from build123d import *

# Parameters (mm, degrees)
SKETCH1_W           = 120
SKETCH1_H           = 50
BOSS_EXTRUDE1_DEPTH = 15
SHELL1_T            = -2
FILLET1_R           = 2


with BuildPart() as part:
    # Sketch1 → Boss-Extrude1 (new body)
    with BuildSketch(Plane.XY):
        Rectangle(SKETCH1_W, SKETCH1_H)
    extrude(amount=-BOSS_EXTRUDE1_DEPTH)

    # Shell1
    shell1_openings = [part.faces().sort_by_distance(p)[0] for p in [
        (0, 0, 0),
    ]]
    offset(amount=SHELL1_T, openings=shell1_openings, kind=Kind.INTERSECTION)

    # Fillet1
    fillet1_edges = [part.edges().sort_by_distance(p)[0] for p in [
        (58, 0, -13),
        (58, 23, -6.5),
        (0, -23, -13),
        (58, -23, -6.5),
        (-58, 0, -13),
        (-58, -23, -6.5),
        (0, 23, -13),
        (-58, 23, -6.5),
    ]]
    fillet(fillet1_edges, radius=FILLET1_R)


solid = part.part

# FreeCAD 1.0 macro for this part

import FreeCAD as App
import Part
import Sketcher
from FreeCAD import Vector
Q = App.Units.Quantity


def edges_at(feature, points):
    """Names of the edges that pass closest to the given points."""
    edges = feature.Shape.Edges
    near = lambda p: min(range(len(edges)), key=lambda i: edges[i].distToShape(Part.Vertex(*p))[0])
    return sorted({f"Edge{near(p) + 1}" for p in points})


def faces_at(feature, points):
    """Names of the faces that lie closest to the given points."""
    faces = feature.Shape.Faces
    near = lambda p: min(range(len(faces)), key=lambda i: faces[i].distToShape(Part.Vertex(*p))[0])
    return sorted({f"Face{near(p) + 1}" for p in points})

doc = App.newDocument("Part")
body = doc.addObject("PartDesign::Body", "Body")

# Sketch on XY plane
sketch1 = doc.addObject("Sketcher::SketchObject", "Sketch")
body.addObject(sketch1)
sketch1.AttachmentSupport = (doc.XY_Plane, [""])
sketch1.MapMode = "FlatFace"
sketch1.addGeometry([
    Part.LineSegment(Vector(-60, 25, 0), Vector(-60, -25, 0)),
    Part.LineSegment(Vector(-60, -25, 0), Vector(60, -25, 0)),
    Part.LineSegment(Vector(60, -25, 0), Vector(60, 25, 0)),
    Part.LineSegment(Vector(60, 25, 0), Vector(-60, 25, 0)),
], False)
sketch1.addConstraint([
    Sketcher.Constraint("Coincident", 0, 2, 1, 1),
    Sketcher.Constraint("Coincident", 1, 2, 2, 1),
    Sketcher.Constraint("Coincident", 2, 2, 3, 1),
    Sketcher.Constraint("Coincident", 3, 2, 0, 1),
    Sketcher.Constraint("Vertical", 0),
    Sketcher.Constraint("Horizontal", 1),
    Sketcher.Constraint("Vertical", 2),
    Sketcher.Constraint("Horizontal", 3),
    Sketcher.Constraint("Symmetric", 0, 2, 2, 2, -1, 1),
    Sketcher.Constraint("DistanceX", 1, 1, 1, 2, Q("120 mm")),
    Sketcher.Constraint("DistanceY", 0, 2, 0, 1, Q("50 mm")),
])
pad1 = doc.addObject("PartDesign::Pad", "Pad")
body.addObject(pad1)
pad1.Profile = sketch1
pad1.Length = 15
pad1.Reversed = True
doc.recompute()

thickness = doc.addObject("PartDesign::Thickness", "Thickness")
body.addObject(thickness)
thickness.Base = (pad1, faces_at(pad1, [(0, 0, 0)]))
thickness.Value = 2
thickness.Reversed = True
thickness.Join = "Intersection"
doc.recompute()

fillet = doc.addObject("PartDesign::Fillet", "Fillet")
body.addObject(fillet)
fillet.Base = (thickness, edges_at(thickness, [
    (58, 0, -13),
    (58, 23, -6.5),
    (0, -23, -13),
    (58, -23, -6.5),
    (-58, 0, -13),
    (-58, -23, -6.5),
    (0, 23, -13),
    (-58, 23, -6.5),
]))
fillet.Radius = 2

doc.recompute()
